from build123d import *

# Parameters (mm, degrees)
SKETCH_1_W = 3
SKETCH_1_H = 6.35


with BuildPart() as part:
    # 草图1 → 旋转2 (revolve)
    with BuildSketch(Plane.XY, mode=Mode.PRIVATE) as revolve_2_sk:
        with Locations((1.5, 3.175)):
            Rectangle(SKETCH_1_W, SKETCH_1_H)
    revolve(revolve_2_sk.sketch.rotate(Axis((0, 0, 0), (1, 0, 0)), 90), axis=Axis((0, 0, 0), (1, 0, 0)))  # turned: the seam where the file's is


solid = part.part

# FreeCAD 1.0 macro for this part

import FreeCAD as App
import Part
import Sketcher

V = App.Vector


def add_polygon(sketch, points):
    """Adds a closed chain of lines whose ends are joined by coincident constraints."""
    first, n = sketch.GeometryCount, len(points)
    for a, b in zip(points, points[1:] + points[:1]):
        sketch.addGeometry(Part.LineSegment(App.Vector(*a, 0), App.Vector(*b, 0)), False)
    for i in range(n):
        sketch.addConstraint(Sketcher.Constraint("Coincident", first + i, 2, first + (i + 1) % n, 1))

doc = App.newDocument("Part")
params = doc.addObject("Spreadsheet::Sheet", "Params")
for row, (alias, value) in enumerate([
    ("sketch1_width", "3 mm"),
    ("sketch1_height", "6.35 mm"),
    ("revolution_angle", "360 deg"),
], start=1):
    params.set(f"A{row}", alias)
    params.set(f"B{row}", "=" + value)
    params.setAlias(f"B{row}", alias)

body = doc.addObject("PartDesign::Body", "Body")

sketch1 = body.newObject("Sketcher::SketchObject", "Sketch")
sketch1.AttachmentSupport = (doc.getObject("XY_Plane"), [""])
sketch1.MapMode = "FlatFace"
add_polygon(sketch1, [(0, 6.3), (0, 0), (3, 0), (3, 6.3)])
sketch1.addConstraint(Sketcher.Constraint("Vertical", 0))
sketch1.addConstraint(Sketcher.Constraint("Horizontal", 1))
sketch1.addConstraint(Sketcher.Constraint("Vertical", 2))
sketch1.addConstraint(Sketcher.Constraint("Horizontal", 3))
sketch1.addConstraint(Sketcher.Constraint("Coincident", 0, 2, -1, 1))
sketch1.addConstraint(Sketcher.Constraint("DistanceX", 1, 1, 1, 2, 3.0))
sketch1.addConstraint(Sketcher.Constraint("DistanceY", 0, 2, 0, 1, 6.35))
sketch1.setExpression("Constraints[9]", "Params.sketch1_width")
sketch1.setExpression("Constraints[10]", "Params.sketch1_height")
revolution = body.newObject("PartDesign::Revolution", "Revolution")
revolution.Profile = sketch1
revolution.ReferenceAxis = (sketch1, ["H_Axis"])
revolution.setExpression("Angle", "Params.revolution_angle")

doc.recompute()
